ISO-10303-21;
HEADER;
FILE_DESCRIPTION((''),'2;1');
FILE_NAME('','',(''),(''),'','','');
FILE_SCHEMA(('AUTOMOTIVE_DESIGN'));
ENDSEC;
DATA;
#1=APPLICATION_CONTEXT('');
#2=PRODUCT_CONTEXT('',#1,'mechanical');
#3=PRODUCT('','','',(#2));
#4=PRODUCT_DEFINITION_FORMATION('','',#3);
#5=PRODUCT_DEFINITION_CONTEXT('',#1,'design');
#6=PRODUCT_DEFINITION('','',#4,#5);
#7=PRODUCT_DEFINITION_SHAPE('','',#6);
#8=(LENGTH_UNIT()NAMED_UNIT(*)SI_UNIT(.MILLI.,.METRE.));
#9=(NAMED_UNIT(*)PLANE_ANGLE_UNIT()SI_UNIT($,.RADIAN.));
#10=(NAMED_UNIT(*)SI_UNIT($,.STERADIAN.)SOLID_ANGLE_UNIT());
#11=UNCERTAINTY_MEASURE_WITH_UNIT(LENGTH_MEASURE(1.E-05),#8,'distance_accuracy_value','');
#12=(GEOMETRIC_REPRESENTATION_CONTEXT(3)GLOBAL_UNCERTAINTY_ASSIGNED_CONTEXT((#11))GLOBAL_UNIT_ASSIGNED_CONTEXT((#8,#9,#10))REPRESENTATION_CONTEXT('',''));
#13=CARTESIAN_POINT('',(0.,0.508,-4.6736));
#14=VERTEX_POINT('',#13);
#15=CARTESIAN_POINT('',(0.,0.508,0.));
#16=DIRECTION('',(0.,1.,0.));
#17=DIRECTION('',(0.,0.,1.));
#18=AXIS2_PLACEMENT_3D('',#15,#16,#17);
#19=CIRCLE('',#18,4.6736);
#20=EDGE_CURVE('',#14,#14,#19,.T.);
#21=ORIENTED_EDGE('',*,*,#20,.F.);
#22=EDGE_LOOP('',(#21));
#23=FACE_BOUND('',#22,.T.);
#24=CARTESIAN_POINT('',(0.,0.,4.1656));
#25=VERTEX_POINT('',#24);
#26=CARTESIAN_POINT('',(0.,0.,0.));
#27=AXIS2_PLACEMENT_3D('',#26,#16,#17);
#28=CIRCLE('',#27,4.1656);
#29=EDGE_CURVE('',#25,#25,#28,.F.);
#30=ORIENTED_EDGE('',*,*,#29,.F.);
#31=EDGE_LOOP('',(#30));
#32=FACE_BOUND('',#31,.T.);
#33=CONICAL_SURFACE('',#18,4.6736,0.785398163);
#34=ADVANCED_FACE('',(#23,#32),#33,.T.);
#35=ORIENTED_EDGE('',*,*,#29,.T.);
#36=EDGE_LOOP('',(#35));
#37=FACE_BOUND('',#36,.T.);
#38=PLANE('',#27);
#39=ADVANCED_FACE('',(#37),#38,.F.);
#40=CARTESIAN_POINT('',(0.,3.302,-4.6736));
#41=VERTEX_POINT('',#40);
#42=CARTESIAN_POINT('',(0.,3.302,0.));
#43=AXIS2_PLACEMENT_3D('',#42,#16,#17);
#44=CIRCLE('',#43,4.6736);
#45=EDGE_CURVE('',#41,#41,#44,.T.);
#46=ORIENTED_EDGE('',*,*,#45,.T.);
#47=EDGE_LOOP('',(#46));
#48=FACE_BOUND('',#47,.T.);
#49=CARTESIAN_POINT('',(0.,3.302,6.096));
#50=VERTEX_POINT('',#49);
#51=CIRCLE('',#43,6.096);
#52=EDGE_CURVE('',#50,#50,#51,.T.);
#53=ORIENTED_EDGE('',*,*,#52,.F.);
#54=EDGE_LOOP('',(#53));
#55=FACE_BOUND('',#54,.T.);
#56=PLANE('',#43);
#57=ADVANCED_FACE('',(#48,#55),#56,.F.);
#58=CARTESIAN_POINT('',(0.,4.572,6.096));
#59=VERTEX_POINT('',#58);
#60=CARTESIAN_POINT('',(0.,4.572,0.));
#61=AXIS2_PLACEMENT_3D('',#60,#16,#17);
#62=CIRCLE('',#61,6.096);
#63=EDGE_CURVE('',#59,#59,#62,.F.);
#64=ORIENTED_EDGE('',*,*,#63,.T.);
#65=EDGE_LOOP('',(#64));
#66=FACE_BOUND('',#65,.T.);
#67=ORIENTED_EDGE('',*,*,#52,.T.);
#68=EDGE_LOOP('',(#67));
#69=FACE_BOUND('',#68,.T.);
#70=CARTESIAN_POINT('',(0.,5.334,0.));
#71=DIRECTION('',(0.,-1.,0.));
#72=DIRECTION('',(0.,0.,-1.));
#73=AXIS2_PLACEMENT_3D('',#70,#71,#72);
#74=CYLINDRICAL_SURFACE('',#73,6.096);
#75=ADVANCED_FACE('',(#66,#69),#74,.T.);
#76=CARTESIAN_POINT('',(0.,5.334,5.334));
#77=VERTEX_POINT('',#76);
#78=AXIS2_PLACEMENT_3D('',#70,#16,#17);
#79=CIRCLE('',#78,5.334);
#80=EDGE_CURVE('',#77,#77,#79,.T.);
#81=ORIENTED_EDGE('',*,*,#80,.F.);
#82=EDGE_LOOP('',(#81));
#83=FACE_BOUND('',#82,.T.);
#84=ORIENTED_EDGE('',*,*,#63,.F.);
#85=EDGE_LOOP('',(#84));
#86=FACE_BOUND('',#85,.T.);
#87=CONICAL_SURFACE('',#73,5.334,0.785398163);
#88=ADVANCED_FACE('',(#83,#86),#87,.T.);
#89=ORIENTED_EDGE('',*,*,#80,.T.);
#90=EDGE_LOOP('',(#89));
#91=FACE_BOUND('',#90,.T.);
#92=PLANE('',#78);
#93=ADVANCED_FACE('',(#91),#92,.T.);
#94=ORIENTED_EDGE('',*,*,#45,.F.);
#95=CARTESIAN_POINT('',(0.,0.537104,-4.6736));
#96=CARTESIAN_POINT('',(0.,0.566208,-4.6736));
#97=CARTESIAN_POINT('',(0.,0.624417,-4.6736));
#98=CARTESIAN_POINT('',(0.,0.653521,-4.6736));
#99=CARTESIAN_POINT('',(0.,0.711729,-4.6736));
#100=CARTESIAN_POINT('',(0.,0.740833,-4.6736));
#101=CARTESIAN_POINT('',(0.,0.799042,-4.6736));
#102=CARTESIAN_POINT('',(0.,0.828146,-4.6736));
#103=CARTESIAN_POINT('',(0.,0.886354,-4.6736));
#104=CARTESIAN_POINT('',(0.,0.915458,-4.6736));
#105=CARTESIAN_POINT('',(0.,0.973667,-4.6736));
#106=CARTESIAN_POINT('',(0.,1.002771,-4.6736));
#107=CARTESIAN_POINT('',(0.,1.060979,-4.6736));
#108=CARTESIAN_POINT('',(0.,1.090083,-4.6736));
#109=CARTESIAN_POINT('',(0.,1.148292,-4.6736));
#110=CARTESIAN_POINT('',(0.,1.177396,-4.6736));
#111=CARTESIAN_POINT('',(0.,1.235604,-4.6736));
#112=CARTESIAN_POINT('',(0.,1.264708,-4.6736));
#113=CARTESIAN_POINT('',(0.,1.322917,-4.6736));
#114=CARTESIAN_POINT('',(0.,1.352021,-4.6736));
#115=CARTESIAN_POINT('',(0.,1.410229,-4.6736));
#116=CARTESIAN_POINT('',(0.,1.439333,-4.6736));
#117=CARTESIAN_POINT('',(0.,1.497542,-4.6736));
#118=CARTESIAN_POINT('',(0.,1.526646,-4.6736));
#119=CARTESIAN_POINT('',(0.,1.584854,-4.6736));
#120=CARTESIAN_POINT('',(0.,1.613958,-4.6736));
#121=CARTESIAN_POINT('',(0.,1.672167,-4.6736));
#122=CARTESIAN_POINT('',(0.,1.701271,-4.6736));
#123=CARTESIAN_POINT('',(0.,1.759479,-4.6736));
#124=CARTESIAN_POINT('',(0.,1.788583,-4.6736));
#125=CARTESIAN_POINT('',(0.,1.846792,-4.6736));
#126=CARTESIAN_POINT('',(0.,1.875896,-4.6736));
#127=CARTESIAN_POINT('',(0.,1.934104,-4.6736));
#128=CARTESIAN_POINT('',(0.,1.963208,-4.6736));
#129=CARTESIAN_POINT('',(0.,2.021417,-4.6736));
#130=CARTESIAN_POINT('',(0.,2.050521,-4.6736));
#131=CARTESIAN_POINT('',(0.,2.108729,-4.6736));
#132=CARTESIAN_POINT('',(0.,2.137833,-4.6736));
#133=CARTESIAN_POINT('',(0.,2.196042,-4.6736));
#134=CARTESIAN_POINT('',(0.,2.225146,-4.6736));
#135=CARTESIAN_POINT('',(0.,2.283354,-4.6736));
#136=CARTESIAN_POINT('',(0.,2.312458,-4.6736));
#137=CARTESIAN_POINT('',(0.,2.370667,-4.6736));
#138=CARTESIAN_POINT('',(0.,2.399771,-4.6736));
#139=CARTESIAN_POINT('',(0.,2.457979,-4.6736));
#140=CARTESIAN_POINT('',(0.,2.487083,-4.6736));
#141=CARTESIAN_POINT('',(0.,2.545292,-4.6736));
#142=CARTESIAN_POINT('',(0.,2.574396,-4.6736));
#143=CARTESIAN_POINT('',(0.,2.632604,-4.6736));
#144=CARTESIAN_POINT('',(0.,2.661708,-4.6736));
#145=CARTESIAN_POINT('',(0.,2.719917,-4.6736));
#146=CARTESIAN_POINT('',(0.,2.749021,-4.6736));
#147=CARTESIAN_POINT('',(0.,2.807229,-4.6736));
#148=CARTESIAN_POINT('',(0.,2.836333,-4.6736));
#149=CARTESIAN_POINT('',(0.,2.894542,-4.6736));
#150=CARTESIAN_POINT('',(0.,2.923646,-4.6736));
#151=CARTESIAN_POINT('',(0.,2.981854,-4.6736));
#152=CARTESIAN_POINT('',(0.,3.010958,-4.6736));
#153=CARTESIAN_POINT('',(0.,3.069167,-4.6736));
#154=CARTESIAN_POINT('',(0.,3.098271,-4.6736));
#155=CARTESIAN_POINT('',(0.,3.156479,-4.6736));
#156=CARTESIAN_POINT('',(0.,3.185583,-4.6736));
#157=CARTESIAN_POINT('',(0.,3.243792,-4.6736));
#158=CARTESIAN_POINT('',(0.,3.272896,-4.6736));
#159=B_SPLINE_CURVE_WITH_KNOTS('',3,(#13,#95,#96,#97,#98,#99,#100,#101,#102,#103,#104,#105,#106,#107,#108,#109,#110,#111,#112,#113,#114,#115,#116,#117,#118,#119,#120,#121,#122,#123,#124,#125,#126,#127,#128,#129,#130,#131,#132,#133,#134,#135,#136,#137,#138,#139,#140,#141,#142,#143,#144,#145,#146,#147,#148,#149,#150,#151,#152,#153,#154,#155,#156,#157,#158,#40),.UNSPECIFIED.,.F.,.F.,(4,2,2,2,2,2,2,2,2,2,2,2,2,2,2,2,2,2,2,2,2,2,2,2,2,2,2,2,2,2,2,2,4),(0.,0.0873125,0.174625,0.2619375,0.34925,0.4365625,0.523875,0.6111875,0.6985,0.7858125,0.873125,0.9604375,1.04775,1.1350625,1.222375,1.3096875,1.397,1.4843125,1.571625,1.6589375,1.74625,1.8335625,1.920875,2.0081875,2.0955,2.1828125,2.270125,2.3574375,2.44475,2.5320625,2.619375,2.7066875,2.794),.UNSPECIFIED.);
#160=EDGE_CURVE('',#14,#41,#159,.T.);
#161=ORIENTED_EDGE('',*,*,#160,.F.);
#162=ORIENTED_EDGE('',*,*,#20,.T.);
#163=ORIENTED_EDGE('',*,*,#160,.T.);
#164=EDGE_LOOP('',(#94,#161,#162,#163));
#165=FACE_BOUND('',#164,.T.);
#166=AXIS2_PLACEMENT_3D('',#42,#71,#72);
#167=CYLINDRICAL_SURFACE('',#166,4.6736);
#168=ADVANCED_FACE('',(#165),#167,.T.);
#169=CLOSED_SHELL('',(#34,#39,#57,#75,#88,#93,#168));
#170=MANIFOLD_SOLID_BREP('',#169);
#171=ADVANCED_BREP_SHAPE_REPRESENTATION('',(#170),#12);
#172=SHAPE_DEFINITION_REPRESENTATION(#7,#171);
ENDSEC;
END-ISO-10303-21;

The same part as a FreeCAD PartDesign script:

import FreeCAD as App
import Part
import Sketcher

V = App.Vector
Q = App.Units.Quantity


def edges_at(feature, points):
    """Names of the edges that pass closest to the given points."""
    edges = feature.Shape.Edges
    near = lambda p: min(range(len(edges)), key=lambda i: edges[i].distToShape(Part.Vertex(*p))[0])
    return sorted({f"Edge{near(p) + 1}" for p in points})

doc = App.newDocument("Part")
body = doc.addObject("PartDesign::Body", "Body")

# Sketch on XZ plane
sketch1 = body.newObject("Sketcher::SketchObject", "Sketch")
sketch1.AttachmentSupport = (doc.getObject("XZ_Plane"), [""])
sketch1.MapMode = "FlatFace"
sketch1.addGeometry(Part.Circle(V(0, 0, 0), V(0, 0, 1), 4.7), False)
sketch1.addConstraint(Sketcher.Constraint("Coincident", 0, 3, -1, 1))
sketch1.addConstraint(Sketcher.Constraint("Diameter", 0, Q("0.368 in")))
pad1 = body.newObject("PartDesign::Pad", "Pad")
pad1.Profile = sketch1
pad1.Length = Q("0.13 in")
pad1.Reversed = True

# Sketch on XZ plane
sketch2 = body.newObject("Sketcher::SketchObject", "Sketch001")
sketch2.AttachmentSupport = (doc.getObject("XZ_Plane"), [""])
sketch2.MapMode = "FlatFace"
sketch2.AttachmentOffset = App.Placement(V(0, 0, -0.13 * 25.4), App.Rotation())
sketch2.addGeometry(Part.Circle(V(0, 0, 0), V(0, 0, 1), 6), False)
sketch2.addConstraint(Sketcher.Constraint("Coincident", 0, 3, -1, 1))
sketch2.addConstraint(Sketcher.Constraint("Diameter", 0, Q("0.48 in")))
pad2 = body.newObject("PartDesign::Pad", "Pad001")
pad2.Profile = sketch2
pad2.Length = Q("0.08 in")
pad2.Reversed = True
doc.recompute()

chamfer = body.newObject("PartDesign::Chamfer", "Chamfer")
chamfer.Base = (pad2, edges_at(pad2, [(0, 5.334, -6.096)]))
chamfer.Size = Q("0.03 in")
doc.recompute()

chamfer2 = body.newObject("PartDesign::Chamfer", "Chamfer001")
chamfer2.Base = (chamfer, edges_at(chamfer, [(0, 0, 4.674)]))
chamfer2.Size = Q("0.02 in")

doc.recompute()
